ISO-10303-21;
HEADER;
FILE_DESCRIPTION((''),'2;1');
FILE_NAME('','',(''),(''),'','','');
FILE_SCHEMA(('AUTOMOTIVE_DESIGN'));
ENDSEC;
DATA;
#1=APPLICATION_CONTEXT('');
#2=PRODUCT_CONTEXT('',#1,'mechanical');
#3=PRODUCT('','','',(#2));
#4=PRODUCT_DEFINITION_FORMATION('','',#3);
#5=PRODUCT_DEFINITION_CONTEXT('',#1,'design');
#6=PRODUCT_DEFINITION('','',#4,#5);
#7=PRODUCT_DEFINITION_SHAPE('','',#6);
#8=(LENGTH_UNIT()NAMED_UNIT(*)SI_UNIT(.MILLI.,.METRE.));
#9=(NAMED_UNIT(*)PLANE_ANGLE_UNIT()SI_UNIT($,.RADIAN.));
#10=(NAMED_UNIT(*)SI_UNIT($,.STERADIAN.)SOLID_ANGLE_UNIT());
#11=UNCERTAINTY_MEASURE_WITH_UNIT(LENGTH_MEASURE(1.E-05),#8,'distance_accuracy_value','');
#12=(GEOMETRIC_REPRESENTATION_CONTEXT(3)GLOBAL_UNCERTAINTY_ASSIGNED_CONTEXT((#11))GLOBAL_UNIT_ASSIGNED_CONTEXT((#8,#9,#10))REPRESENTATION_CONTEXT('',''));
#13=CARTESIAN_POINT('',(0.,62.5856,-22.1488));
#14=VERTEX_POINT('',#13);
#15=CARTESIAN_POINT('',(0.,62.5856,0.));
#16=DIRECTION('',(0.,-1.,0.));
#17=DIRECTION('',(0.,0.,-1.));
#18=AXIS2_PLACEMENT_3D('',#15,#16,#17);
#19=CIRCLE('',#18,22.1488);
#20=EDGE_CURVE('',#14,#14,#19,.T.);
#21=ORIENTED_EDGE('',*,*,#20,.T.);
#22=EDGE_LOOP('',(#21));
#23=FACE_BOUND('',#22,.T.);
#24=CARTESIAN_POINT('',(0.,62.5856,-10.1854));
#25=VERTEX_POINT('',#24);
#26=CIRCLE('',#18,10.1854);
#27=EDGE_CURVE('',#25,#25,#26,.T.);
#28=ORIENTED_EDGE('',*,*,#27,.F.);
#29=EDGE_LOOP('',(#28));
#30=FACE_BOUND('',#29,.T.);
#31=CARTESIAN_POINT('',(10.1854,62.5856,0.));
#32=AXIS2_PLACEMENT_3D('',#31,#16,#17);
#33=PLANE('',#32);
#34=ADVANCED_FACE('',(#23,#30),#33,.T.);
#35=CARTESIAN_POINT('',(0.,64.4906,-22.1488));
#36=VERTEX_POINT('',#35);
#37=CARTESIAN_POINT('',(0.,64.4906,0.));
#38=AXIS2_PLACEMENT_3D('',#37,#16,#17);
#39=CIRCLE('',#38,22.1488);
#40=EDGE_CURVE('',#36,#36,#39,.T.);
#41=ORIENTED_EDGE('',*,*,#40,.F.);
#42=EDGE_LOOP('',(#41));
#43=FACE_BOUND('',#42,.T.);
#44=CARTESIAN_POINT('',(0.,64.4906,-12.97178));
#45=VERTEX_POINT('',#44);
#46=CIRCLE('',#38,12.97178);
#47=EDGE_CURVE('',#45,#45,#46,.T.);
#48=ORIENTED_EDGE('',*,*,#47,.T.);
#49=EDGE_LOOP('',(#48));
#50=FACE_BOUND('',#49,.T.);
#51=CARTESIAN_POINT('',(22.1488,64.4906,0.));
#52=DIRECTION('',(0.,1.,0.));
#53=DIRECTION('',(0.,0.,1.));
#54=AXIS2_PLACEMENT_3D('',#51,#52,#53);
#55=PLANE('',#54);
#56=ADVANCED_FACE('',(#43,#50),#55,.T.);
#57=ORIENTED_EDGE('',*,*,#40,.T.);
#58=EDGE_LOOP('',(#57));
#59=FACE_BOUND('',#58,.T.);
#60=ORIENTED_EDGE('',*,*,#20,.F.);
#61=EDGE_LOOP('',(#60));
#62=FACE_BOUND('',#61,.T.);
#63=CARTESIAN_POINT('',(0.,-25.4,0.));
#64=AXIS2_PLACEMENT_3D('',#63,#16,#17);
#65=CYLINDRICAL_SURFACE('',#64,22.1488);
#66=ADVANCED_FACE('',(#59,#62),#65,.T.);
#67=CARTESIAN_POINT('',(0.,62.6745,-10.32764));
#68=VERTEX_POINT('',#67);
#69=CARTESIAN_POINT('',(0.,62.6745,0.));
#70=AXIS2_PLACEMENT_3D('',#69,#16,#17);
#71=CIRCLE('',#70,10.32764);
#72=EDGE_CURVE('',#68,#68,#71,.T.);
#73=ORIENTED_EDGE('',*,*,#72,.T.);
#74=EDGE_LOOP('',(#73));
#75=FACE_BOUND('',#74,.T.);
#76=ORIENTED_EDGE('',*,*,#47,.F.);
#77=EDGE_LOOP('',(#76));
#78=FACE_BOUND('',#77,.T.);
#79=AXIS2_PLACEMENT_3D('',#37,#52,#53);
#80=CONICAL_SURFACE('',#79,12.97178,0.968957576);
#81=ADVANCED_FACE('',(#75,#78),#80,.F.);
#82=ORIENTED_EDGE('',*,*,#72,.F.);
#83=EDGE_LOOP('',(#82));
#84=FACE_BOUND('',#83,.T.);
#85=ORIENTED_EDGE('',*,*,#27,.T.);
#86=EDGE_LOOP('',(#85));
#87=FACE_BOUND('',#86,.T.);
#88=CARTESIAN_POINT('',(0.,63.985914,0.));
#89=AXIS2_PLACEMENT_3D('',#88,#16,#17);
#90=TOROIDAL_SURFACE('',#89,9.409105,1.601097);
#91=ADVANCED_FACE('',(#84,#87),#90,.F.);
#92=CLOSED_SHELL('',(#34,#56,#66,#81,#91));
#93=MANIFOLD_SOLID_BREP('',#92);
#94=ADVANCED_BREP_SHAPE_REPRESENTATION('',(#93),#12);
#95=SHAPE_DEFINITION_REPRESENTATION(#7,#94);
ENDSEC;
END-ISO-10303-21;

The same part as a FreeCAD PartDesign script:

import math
import FreeCAD as App
import Part
import Sketcher
from FreeCAD import Vector
Q = App.Units.Quantity

doc = App.newDocument("Part")
body = doc.addObject("PartDesign::Body", "Body")

# Sketch on XY plane
sketch1 = body.newObject("Sketcher::SketchObject", "Sketch")
sketch1.AttachmentSupport = (doc.getObject("XY_Plane"), [""])
sketch1.MapMode = "FlatFace"
sketch1.addGeometry(Part.LineSegment(Vector(10.1854, 62.5856, 0), Vector(22.1488, 62.5856, 0)), False)
sketch1.addGeometry(Part.LineSegment(Vector(22.1488, 62.5856, 0), Vector(22.1488, 64.4906, 0)), False)
sketch1.addGeometry(Part.LineSegment(Vector(22.1488, 64.4906, 0), Vector(12.97178, 64.4906, 0)), False)
sketch1.addGeometry(Part.LineSegment(Vector(12.97178, 64.4906, 0), Vector(10.32764, 62.6745, 0)), False)
sketch1.addGeometry(Part.ArcOfCircle(Part.Circle(Vector(9.409105, 63.985914, 0), Vector(0, 0, 1), 1.601097), math.radians(-60.997237), math.radians(-54.991996)), False)
sketch1.addConstraint(Sketcher.Constraint("Coincident", 0, 2, 1, 1))
sketch1.addConstraint(Sketcher.Constraint("Coincident", 1, 2, 2, 1))
sketch1.addConstraint(Sketcher.Constraint("Coincident", 2, 2, 3, 1))
sketch1.addConstraint(Sketcher.Constraint("Coincident", 3, 2, 4, 2))
sketch1.addConstraint(Sketcher.Constraint("Coincident", 4, 1, 0, 1))
sketch1.addConstraint(Sketcher.Constraint("Horizontal", 0))
sketch1.addConstraint(Sketcher.Constraint("Vertical", 1))
sketch1.addConstraint(Sketcher.Constraint("Horizontal", 2))
sketch1.addConstraint(Sketcher.Constraint("DistanceX", 0, 1, 0, 2, Q("0.471 in")))
sketch1.addConstraint(Sketcher.Constraint("DistanceY", 1, 1, 1, 2, Q("0.075 in")))
sketch1.addConstraint(Sketcher.Constraint("DistanceX", 2, 2, 2, 1, Q("0.3613 in")))
sketch1.addConstraint(Sketcher.Constraint("DistanceX", -1, 1, 0, 2, Q("0.872 in")))
sketch1.addConstraint(Sketcher.Constraint("DistanceY", -1, 1, 0, 2, Q("2.464 in")))
sketch1.addConstraint(Sketcher.Constraint("DistanceX", -1, 1, 3, 2, Q("0.4066 in")))
sketch1.addConstraint(Sketcher.Constraint("DistanceY", -1, 1, 3, 2, Q("2.4675 in")))
sketch1.addConstraint(Sketcher.Constraint("Radius", 4, 1.601097))
revolution = body.newObject("PartDesign::Revolution", "Revolution")
revolution.Profile = sketch1
revolution.ReferenceAxis = (sketch1, ["V_Axis"])
revolution.Angle = 360

doc.recompute()
